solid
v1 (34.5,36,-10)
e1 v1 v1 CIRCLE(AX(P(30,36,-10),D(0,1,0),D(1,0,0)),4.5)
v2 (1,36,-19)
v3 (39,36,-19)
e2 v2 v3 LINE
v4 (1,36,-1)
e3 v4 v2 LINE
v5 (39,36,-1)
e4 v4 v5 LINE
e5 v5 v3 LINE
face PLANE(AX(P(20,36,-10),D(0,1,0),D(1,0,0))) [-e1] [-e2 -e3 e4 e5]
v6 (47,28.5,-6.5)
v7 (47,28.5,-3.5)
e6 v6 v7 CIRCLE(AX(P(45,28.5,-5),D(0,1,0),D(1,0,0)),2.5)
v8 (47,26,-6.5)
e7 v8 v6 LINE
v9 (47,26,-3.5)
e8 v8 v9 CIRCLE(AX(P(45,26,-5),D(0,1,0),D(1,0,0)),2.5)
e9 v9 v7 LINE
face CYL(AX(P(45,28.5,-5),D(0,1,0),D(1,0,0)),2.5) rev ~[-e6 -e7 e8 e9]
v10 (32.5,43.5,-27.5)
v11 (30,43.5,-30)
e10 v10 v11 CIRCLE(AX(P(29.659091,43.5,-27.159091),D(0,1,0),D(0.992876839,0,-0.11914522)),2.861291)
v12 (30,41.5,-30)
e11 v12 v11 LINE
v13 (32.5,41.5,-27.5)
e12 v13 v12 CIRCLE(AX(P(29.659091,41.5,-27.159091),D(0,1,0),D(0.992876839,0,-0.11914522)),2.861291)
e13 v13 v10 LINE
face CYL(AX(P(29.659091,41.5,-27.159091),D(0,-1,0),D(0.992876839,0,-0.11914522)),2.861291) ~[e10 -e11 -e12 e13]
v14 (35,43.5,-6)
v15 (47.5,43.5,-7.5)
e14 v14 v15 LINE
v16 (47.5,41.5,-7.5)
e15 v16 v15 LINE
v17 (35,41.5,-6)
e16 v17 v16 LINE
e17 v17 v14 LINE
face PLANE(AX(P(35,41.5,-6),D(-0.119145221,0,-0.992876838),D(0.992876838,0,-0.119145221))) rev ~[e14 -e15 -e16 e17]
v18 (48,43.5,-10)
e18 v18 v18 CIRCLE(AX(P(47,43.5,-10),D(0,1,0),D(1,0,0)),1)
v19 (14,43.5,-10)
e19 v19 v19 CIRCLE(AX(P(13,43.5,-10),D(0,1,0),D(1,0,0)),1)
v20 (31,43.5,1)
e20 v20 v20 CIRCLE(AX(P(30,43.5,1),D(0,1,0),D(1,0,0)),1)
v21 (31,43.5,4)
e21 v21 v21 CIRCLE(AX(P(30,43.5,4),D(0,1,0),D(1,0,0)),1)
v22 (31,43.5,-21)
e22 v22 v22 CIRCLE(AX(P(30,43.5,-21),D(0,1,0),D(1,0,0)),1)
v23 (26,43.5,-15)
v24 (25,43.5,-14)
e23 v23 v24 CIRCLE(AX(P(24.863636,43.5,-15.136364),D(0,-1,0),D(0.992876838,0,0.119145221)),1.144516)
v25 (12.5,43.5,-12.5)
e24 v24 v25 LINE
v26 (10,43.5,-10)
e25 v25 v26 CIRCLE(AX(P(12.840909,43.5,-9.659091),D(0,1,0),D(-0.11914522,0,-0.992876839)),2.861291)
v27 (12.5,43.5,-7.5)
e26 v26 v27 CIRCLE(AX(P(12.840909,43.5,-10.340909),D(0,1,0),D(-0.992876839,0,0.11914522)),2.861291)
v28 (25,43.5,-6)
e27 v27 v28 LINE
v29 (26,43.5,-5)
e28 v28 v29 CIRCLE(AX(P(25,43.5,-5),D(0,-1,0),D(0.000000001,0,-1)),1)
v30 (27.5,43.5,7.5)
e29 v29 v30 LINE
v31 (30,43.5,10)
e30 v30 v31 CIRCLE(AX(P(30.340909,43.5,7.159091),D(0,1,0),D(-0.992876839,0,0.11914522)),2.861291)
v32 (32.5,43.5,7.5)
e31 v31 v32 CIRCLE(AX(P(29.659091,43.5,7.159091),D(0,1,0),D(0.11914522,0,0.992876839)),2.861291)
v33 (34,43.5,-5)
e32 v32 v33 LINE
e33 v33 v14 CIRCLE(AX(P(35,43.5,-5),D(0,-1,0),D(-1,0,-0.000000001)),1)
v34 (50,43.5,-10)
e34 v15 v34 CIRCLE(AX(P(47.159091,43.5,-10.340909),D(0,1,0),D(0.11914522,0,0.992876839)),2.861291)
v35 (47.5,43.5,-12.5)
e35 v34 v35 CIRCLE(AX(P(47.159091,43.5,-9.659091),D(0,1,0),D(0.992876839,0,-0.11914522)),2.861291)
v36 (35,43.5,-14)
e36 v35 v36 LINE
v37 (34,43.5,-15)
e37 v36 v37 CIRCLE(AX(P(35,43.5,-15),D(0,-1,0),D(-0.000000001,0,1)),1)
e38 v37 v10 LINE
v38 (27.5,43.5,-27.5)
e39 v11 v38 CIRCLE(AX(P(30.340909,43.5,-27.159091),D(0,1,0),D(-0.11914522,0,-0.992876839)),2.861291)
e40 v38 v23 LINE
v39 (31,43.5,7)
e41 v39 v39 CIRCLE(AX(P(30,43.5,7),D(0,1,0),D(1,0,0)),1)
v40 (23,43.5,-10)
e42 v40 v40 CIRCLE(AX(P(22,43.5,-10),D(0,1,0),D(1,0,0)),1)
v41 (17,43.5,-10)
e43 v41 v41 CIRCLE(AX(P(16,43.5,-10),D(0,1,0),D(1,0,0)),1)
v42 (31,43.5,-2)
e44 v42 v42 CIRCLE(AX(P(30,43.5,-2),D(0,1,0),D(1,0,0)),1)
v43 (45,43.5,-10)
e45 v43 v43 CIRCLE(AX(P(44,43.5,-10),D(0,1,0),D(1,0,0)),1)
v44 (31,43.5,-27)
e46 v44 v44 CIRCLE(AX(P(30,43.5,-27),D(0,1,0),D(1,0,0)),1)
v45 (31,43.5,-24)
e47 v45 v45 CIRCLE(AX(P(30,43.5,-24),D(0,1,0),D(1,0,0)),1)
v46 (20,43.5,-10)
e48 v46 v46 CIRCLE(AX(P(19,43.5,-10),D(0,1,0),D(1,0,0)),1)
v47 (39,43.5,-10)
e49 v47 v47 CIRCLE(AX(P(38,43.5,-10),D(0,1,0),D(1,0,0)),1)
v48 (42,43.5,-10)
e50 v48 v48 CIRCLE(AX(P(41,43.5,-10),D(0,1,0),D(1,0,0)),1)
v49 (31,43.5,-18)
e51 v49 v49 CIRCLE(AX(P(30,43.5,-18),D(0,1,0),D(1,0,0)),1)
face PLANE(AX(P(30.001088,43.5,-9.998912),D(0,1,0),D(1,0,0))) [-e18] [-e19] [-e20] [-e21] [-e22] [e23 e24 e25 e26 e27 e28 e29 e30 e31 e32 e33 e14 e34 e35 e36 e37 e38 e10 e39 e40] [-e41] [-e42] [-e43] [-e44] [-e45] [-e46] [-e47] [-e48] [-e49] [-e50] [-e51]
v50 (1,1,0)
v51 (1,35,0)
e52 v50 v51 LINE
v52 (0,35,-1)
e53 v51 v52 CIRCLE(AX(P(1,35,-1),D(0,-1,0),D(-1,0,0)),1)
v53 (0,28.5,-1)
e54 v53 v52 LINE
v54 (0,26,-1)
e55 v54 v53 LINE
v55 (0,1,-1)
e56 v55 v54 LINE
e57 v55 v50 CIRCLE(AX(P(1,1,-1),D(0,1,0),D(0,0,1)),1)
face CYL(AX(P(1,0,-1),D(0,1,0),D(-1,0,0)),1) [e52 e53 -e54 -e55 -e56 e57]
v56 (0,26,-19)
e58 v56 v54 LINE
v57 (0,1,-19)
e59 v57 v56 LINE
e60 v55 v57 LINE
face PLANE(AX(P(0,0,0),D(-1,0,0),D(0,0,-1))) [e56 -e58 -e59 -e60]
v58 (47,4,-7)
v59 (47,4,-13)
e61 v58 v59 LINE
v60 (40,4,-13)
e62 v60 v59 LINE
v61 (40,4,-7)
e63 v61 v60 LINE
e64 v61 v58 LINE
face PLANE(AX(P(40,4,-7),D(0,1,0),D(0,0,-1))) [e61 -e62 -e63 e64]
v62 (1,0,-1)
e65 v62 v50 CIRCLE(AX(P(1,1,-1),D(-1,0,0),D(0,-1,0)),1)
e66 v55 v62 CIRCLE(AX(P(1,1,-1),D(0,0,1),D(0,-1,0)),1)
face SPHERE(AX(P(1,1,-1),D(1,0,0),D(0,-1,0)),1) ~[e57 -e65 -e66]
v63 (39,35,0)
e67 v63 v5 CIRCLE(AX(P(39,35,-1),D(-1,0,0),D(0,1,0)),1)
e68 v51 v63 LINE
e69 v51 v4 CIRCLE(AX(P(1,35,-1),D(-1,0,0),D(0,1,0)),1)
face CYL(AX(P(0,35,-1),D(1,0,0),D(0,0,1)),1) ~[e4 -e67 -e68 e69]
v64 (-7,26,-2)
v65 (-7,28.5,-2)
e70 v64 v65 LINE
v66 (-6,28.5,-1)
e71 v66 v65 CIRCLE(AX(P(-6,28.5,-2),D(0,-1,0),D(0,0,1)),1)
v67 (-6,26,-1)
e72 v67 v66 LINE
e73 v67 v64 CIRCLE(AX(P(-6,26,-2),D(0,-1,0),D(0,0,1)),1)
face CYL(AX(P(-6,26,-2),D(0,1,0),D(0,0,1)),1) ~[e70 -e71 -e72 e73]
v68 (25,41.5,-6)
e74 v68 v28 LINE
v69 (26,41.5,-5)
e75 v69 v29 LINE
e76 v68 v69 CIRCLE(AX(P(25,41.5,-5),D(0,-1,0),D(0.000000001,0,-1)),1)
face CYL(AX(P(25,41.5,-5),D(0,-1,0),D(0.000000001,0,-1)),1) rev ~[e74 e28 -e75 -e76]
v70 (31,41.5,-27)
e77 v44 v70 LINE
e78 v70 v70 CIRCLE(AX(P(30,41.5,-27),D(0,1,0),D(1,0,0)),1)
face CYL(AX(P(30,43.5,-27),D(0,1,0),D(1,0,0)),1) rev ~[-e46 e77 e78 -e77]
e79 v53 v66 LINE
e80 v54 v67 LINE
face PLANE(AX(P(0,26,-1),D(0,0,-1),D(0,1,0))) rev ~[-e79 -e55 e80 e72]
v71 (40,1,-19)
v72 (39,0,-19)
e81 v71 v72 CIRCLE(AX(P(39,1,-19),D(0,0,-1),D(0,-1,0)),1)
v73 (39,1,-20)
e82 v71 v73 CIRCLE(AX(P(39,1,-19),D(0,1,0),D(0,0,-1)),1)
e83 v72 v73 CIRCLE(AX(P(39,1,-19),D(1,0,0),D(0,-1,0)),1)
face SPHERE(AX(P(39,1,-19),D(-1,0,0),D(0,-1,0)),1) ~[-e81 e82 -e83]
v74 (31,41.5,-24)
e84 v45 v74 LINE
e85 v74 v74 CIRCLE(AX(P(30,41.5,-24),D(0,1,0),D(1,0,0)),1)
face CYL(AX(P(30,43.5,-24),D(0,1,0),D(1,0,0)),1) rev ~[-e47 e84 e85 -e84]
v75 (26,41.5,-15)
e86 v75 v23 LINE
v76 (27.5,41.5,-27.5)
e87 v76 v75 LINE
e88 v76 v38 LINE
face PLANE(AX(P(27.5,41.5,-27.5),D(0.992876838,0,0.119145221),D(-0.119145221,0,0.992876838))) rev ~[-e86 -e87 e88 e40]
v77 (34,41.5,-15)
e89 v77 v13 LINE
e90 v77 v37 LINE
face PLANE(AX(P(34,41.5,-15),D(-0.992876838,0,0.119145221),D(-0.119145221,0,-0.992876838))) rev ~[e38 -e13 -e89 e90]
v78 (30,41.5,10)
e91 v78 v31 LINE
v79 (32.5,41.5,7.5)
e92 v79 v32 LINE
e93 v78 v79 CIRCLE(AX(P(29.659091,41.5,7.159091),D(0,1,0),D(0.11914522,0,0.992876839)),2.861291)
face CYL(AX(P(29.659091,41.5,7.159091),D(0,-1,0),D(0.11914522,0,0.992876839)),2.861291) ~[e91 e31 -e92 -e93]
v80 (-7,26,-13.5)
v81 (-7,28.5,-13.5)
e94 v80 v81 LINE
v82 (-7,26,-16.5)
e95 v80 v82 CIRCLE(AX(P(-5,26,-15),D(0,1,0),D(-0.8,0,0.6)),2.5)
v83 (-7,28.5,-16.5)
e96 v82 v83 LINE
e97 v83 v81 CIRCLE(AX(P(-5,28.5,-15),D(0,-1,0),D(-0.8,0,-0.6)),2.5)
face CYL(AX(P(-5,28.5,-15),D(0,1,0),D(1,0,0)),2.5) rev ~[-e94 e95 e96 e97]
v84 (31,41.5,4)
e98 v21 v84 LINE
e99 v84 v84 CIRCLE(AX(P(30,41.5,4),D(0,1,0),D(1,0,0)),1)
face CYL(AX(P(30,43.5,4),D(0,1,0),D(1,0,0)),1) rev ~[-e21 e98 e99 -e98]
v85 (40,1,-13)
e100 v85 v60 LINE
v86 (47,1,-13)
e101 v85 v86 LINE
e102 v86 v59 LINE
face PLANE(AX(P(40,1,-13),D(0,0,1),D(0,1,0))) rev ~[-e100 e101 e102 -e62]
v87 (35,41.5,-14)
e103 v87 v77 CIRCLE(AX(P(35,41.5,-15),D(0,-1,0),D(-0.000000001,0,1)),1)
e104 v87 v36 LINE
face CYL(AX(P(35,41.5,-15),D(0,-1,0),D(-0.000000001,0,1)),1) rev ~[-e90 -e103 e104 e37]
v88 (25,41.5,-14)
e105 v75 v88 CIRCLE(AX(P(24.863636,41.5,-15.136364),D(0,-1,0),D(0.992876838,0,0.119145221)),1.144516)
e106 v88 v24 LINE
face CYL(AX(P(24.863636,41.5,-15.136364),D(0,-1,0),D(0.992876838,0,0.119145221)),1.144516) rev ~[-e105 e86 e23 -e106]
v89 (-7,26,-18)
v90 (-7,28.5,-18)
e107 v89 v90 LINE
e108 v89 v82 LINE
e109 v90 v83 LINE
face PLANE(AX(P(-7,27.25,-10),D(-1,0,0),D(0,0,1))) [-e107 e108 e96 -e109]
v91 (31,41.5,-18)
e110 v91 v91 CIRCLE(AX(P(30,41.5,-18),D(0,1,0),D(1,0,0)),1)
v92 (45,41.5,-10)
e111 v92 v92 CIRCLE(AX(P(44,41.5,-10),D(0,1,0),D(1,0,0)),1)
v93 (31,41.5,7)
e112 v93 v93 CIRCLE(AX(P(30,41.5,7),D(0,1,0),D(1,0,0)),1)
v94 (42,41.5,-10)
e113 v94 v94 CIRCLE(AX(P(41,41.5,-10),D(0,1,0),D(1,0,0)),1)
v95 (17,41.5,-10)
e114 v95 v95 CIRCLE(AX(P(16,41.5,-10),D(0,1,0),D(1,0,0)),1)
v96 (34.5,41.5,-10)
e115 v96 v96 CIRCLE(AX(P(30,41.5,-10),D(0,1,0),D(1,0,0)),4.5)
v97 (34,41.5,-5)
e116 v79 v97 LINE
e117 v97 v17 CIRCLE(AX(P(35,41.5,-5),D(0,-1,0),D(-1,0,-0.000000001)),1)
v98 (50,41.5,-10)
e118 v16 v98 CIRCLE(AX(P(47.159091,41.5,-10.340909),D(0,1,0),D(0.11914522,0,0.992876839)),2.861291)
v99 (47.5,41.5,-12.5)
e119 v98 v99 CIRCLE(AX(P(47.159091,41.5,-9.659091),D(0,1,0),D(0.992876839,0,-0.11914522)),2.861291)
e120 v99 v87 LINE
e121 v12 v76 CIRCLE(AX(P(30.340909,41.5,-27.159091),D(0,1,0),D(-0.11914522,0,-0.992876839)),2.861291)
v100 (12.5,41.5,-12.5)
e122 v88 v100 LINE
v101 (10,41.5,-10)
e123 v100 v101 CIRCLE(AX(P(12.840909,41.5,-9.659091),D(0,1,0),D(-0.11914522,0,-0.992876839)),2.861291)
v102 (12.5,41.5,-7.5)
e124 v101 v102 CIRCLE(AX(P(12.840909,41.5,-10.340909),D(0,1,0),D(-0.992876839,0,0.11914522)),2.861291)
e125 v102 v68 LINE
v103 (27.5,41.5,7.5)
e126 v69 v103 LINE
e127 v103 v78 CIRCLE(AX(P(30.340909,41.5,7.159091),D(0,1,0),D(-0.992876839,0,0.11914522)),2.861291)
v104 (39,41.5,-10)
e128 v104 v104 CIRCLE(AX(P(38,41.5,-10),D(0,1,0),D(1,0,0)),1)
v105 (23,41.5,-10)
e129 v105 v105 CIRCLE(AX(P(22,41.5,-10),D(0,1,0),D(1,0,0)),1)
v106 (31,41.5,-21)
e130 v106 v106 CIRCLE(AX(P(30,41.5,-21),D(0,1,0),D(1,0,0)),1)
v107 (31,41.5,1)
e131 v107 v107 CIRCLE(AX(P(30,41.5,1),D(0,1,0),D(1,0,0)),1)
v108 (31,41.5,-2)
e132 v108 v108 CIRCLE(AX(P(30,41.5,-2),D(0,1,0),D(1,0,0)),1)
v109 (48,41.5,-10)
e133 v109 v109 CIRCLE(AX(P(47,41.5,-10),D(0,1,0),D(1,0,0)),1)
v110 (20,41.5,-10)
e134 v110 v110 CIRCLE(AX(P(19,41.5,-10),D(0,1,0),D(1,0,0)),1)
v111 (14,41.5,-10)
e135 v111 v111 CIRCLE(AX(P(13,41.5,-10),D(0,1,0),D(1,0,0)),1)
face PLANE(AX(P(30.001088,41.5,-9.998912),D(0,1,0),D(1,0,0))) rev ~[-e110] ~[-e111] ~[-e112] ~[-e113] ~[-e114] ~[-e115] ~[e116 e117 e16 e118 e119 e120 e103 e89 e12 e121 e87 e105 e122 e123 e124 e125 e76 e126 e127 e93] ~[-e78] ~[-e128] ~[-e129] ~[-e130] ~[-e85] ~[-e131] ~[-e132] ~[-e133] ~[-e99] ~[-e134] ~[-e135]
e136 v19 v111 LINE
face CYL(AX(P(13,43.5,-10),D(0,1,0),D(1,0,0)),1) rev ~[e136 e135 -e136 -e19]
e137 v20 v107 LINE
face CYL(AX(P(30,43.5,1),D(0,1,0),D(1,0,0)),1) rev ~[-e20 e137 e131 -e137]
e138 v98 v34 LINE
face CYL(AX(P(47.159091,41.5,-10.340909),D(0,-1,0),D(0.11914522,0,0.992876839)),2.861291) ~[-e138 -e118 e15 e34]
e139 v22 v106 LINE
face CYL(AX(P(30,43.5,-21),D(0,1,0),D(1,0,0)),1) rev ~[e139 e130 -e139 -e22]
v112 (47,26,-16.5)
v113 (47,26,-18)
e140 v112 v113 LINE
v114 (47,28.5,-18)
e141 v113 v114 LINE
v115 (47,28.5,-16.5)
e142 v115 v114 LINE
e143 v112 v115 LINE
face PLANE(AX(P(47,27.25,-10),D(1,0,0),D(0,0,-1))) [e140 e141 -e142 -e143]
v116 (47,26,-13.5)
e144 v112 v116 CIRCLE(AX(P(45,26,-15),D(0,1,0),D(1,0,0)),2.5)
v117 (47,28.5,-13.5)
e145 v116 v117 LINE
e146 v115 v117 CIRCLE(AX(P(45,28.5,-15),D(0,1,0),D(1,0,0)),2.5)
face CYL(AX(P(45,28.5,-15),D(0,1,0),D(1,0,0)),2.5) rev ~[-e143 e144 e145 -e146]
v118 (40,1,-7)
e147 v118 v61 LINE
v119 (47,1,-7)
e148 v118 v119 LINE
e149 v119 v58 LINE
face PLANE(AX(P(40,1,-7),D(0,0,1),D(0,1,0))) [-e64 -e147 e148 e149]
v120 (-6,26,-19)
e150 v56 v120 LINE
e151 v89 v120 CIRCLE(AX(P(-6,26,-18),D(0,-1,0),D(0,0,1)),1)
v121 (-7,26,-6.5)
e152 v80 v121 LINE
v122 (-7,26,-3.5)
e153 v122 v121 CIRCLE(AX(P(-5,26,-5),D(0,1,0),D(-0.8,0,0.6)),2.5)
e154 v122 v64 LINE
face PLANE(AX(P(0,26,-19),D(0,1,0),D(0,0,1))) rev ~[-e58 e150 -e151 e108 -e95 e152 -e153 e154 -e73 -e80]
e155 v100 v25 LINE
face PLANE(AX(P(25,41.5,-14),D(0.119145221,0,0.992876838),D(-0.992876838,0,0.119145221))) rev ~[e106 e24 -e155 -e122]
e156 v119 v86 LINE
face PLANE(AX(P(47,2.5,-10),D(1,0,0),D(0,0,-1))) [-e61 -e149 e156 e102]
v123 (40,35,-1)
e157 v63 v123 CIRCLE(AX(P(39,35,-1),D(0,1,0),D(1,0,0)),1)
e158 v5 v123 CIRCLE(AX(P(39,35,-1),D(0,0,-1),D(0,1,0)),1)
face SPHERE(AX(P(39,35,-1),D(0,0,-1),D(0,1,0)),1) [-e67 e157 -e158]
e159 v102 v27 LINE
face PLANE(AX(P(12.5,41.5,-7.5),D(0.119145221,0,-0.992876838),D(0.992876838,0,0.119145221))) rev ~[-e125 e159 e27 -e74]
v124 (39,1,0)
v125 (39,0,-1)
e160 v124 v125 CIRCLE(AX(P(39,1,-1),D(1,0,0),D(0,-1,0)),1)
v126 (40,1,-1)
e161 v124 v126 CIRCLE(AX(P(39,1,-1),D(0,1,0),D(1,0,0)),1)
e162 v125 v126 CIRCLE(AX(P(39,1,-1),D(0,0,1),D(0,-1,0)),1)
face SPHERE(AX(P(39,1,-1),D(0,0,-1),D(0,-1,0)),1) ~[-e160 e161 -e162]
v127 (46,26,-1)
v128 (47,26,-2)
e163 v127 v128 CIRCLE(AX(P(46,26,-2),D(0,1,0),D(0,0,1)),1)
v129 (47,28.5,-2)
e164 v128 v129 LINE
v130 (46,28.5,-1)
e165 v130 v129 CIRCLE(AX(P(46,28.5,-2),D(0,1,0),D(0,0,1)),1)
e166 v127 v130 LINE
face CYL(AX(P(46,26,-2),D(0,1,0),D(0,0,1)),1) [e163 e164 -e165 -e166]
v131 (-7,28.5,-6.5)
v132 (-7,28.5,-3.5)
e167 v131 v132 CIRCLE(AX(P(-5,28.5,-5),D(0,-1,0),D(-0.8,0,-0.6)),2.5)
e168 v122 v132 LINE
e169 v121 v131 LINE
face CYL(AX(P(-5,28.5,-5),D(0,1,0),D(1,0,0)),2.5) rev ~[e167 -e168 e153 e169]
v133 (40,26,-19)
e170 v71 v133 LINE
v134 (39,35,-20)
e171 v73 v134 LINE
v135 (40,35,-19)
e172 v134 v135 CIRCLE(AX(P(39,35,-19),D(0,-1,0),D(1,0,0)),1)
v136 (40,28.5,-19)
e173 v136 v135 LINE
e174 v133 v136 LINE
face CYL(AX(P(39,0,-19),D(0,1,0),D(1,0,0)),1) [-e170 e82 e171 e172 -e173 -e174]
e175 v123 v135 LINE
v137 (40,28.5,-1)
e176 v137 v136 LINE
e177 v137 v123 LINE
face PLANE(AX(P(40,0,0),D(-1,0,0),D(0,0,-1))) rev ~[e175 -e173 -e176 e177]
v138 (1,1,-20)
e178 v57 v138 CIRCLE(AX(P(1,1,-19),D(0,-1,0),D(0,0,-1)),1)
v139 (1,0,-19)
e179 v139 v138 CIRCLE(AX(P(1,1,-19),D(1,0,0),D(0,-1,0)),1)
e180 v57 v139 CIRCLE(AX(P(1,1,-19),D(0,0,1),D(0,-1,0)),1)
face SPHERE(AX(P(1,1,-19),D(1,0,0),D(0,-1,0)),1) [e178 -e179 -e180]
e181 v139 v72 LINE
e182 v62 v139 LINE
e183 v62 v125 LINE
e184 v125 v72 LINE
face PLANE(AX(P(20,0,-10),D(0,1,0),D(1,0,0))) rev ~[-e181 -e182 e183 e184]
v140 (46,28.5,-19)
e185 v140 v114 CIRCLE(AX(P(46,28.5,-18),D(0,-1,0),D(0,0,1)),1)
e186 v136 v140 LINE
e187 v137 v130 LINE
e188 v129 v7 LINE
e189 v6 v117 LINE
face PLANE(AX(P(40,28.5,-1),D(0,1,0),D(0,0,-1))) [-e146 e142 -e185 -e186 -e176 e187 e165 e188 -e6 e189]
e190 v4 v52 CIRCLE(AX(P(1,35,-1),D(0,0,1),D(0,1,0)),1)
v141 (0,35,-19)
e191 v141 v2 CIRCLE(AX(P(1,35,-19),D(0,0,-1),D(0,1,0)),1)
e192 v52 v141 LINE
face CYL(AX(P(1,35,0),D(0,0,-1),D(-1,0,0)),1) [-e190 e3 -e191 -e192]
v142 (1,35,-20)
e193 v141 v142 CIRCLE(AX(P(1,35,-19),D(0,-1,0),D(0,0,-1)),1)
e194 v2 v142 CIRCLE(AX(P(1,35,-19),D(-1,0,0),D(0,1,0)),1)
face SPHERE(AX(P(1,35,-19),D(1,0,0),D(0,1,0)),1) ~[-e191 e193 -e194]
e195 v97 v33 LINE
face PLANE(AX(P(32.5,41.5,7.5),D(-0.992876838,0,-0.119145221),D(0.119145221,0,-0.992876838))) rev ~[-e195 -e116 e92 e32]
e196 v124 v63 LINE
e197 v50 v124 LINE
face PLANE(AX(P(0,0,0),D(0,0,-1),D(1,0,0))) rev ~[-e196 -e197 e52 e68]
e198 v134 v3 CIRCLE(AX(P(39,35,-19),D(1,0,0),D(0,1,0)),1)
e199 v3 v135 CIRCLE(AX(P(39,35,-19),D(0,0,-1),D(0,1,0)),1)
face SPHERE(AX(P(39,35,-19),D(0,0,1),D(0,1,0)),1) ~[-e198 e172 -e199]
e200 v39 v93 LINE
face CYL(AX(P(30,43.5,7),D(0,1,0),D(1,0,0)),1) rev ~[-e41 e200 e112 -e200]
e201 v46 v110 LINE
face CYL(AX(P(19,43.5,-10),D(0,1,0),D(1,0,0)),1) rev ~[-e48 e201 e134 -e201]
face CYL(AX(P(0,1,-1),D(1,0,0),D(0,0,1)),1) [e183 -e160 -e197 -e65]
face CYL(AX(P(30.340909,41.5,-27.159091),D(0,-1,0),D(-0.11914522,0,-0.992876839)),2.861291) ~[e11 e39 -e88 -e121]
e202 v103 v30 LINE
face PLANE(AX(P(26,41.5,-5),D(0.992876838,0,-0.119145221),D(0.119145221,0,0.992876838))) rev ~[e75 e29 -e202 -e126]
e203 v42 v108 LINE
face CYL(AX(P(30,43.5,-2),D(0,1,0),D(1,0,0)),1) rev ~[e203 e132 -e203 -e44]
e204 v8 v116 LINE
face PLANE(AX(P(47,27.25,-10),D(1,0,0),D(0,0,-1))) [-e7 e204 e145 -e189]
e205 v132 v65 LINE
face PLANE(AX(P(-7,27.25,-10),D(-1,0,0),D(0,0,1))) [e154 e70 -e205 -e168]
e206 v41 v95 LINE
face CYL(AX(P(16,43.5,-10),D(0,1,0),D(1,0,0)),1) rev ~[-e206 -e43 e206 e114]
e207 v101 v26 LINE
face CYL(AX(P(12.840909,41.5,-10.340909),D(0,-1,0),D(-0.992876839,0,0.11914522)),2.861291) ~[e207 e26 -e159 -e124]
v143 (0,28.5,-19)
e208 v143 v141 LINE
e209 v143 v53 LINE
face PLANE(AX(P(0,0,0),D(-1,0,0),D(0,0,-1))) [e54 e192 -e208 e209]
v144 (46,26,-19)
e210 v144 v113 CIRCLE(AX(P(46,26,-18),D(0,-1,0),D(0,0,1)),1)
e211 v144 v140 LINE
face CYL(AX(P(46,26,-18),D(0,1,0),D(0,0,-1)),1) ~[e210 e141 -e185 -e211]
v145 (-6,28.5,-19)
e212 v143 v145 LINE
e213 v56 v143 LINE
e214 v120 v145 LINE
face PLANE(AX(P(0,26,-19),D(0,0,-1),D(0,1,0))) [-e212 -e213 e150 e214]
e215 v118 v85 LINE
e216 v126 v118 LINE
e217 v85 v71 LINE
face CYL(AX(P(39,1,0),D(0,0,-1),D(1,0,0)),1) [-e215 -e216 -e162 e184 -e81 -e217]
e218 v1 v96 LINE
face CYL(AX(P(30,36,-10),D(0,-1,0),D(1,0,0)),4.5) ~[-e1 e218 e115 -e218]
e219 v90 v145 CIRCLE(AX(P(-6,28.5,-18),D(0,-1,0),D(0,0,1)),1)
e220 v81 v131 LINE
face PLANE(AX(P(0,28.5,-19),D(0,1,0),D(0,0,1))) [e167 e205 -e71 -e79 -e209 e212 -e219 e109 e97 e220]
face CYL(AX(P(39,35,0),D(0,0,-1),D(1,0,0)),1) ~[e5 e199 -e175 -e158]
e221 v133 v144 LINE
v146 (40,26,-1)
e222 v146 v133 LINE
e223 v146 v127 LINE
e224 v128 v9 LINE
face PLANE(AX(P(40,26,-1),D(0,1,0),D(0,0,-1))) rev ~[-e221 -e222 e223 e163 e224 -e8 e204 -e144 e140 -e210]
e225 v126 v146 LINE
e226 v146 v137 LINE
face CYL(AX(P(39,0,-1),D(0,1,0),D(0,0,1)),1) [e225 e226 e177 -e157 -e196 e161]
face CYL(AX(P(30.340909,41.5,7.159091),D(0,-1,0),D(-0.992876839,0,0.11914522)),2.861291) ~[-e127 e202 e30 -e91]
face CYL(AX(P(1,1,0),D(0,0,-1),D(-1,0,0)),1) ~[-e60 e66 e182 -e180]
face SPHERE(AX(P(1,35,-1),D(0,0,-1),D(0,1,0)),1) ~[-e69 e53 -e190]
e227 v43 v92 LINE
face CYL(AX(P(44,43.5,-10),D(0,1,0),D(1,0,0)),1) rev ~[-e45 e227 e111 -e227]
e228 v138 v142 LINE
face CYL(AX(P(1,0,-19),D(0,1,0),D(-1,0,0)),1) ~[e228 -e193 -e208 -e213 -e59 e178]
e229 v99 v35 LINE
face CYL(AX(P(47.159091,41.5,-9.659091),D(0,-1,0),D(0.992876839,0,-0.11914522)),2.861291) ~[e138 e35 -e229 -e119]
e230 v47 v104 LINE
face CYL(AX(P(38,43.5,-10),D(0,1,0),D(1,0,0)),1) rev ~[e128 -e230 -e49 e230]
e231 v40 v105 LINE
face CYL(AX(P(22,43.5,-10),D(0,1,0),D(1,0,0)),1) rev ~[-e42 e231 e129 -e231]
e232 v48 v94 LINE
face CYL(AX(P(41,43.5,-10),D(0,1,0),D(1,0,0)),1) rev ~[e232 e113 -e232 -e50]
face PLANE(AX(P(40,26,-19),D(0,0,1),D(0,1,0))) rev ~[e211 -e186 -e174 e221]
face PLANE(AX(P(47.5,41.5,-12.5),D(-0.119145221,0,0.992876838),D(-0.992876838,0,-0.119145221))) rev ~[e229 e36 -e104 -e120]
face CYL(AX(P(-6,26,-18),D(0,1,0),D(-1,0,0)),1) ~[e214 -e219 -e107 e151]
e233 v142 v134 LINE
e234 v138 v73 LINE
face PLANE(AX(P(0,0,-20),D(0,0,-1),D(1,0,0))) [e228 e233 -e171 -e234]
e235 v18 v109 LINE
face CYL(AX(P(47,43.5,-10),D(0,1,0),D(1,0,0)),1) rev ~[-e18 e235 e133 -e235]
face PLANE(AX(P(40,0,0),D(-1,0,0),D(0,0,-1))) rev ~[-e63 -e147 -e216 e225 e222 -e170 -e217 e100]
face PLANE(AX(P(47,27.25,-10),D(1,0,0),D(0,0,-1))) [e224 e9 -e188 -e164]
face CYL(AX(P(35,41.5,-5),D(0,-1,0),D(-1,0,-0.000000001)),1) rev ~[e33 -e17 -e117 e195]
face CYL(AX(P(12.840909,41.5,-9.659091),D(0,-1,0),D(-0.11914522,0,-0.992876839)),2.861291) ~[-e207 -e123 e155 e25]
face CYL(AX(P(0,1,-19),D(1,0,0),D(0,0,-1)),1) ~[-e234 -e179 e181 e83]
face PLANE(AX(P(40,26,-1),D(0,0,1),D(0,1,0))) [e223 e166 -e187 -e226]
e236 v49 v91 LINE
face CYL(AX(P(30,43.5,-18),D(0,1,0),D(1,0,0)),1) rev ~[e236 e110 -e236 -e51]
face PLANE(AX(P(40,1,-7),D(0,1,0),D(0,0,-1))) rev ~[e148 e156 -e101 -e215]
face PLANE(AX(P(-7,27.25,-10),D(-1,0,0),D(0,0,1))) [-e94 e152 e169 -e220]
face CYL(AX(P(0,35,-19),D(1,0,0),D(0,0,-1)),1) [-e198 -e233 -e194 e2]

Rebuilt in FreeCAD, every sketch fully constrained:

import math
import FreeCAD as App
import Part
import Sketcher
Q = App.Units.Quantity


def edges_at(feature, points):
    """Names of the edges that pass closest to the given points."""
    edges = feature.Shape.Edges
    near = lambda p: min(range(len(edges)), key=lambda i: edges[i].distToShape(Part.Vertex(*p))[0])
    return sorted({f"Edge{near(p) + 1}" for p in points})

doc = App.newDocument("Part")
body = doc.addObject("PartDesign::Body", "Body")

sketch1 = doc.addObject("Sketcher::SketchObject", "Sketch")
body.addObject(sketch1)
sketch1.AttachmentSupport = (doc.XZ_Plane, [""])
sketch1.MapMode = "FlatFace"
sketch1.addGeometry([
    Part.LineSegment(App.Vector(0, -20, 0), App.Vector(0, 0, 0)),
    Part.LineSegment(App.Vector(0, 0, 0), App.Vector(40, 0, 0)),
    Part.LineSegment(App.Vector(40, 0, 0), App.Vector(40, -20, 0)),
    Part.LineSegment(App.Vector(40, -20, 0), App.Vector(0, -20, 0)),
], False)
sketch1.addConstraint([
    Sketcher.Constraint("Coincident", 0, 2, 1, 1),
    Sketcher.Constraint("Coincident", 1, 2, 2, 1),
    Sketcher.Constraint("Coincident", 2, 2, 3, 1),
    Sketcher.Constraint("Coincident", 3, 2, 0, 1),
    Sketcher.Constraint("Vertical", 0),
    Sketcher.Constraint("Horizontal", 1),
    Sketcher.Constraint("Vertical", 2),
    Sketcher.Constraint("Horizontal", 3),
    Sketcher.Constraint("Coincident", 0, 2, -1, 1),
    Sketcher.Constraint("DistanceX", 1, 1, 1, 2, Q("40 mm")),
    Sketcher.Constraint("DistanceY", 0, 1, 0, 2, Q("20 mm")),
])
pad1 = doc.addObject("PartDesign::Pad", "Pad")
body.addObject(pad1)
pad1.Profile = sketch1
pad1.Length = 36
pad1.Reversed = True
doc.recompute()

fillet = doc.addObject("PartDesign::Fillet", "Fillet")
body.addObject(fillet)
fillet.Base = (pad1, ["Edge1"])
fillet.UseAllEdges = True
fillet.Radius = 1

sketch2 = doc.addObject("Sketcher::SketchObject", "Sketch001")
body.addObject(sketch2)
sketch2.AttachmentSupport = (doc.YZ_Plane, [""])
sketch2.MapMode = "FlatFace"
sketch2.AttachmentOffset = App.Placement(App.Vector(0, 0, 40), App.Rotation())
sketch2.addGeometry([
    Part.LineSegment(App.Vector(28.5, -1, 0), App.Vector(26, -1, 0)),
    Part.LineSegment(App.Vector(26, -1, 0), App.Vector(26, -19, 0)),
    Part.LineSegment(App.Vector(26, -19, 0), App.Vector(28.5, -19, 0)),
    Part.LineSegment(App.Vector(28.5, -19, 0), App.Vector(28.5, -1, 0)),
], False)
sketch2.addConstraint([
    Sketcher.Constraint("Coincident", 0, 2, 1, 1),
    Sketcher.Constraint("Coincident", 1, 2, 2, 1),
    Sketcher.Constraint("Coincident", 2, 2, 3, 1),
    Sketcher.Constraint("Coincident", 3, 2, 0, 1),
    Sketcher.Constraint("Horizontal", 0),
    Sketcher.Constraint("Vertical", 1),
    Sketcher.Constraint("Horizontal", 2),
    Sketcher.Constraint("Vertical", 3),
    Sketcher.Constraint("DistanceY", 1, 2, 1, 1, Q("18 mm")),
    Sketcher.Constraint("DistanceX", 0, 2, 0, 1, Q("2.5 mm")),
    Sketcher.Constraint("DistanceX", -1, 1, 0, 2, Q("26 mm")),
    Sketcher.Constraint("DistanceY", 0, 2, -1, 1, Q("1 mm")),
])
pad2 = doc.addObject("PartDesign::Pad", "Pad001")
body.addObject(pad2)
pad2.Profile = sketch2
pad2.Length = 7

sketch3 = doc.addObject("Sketcher::SketchObject", "Sketch002")
body.addObject(sketch3)
sketch3.AttachmentSupport = (doc.XZ_Plane, [""])
sketch3.MapMode = "FlatFace"
sketch3.AttachmentOffset = App.Placement(App.Vector(0, 0, -28.5), App.Rotation())
sketch3.addGeometry(Part.Circle(App.Vector(45, -5, 0), App.Vector(0, 0, 1), 2.5), False)
sketch3.addConstraint([
    Sketcher.Constraint("Diameter", 0, Q("5 mm")),
    Sketcher.Constraint("DistanceX", -1, 1, 0, 3, Q("45 mm")),
    Sketcher.Constraint("DistanceY", 0, 3, -1, 1, Q("5 mm")),
])
pocket1 = doc.addObject("PartDesign::Pocket", "Pocket")
body.addObject(pocket1)
pocket1.Profile = sketch3
pocket1.Type = "UpToFirst"
pocket1.Reversed = True

sketch4 = doc.addObject("Sketcher::SketchObject", "Sketch003")
body.addObject(sketch4)
sketch4.AttachmentSupport = (doc.XZ_Plane, [""])
sketch4.MapMode = "FlatFace"
sketch4.AttachmentOffset = App.Placement(App.Vector(0, 0, -28.5), App.Rotation())
sketch4.addGeometry(Part.Circle(App.Vector(45, -15, 0), App.Vector(0, 0, 1), 2.5), False)
sketch4.addConstraint([
    Sketcher.Constraint("Diameter", 0, Q("5 mm")),
    Sketcher.Constraint("DistanceX", -1, 1, 0, 3, Q("45 mm")),
    Sketcher.Constraint("DistanceY", 0, 3, -1, 1, Q("15 mm")),
])
pocket2 = doc.addObject("PartDesign::Pocket", "Pocket001")
body.addObject(pocket2)
pocket2.Profile = sketch4
pocket2.Type = "UpToFirst"
pocket2.Reversed = True
doc.recompute()

fillet2 = doc.addObject("PartDesign::Fillet", "Fillet001")
body.addObject(fillet2)
fillet2.Base = (pocket2, edges_at(pocket2, [(47, 27.25, -19), (47, 27.25, -1)]))
fillet2.Radius = 1

sketch5 = doc.addObject("Sketcher::SketchObject", "Sketch004")
body.addObject(sketch5)
sketch5.AttachmentSupport = (doc.YZ_Plane, [""])
sketch5.MapMode = "FlatFace"
sketch5.addGeometry([
    Part.LineSegment(App.Vector(28.5, -19, 0), App.Vector(26, -19, 0)),
    Part.LineSegment(App.Vector(26, -19, 0), App.Vector(26, -1, 0)),
    Part.LineSegment(App.Vector(26, -1, 0), App.Vector(28.5, -1, 0)),
    Part.LineSegment(App.Vector(28.5, -1, 0), App.Vector(28.5, -19, 0)),
], False)
sketch5.addConstraint([
    Sketcher.Constraint("Coincident", 0, 2, 1, 1),
    Sketcher.Constraint("Coincident", 1, 2, 2, 1),
    Sketcher.Constraint("Coincident", 2, 2, 3, 1),
    Sketcher.Constraint("Coincident", 3, 2, 0, 1),
    Sketcher.Constraint("Horizontal", 0),
    Sketcher.Constraint("Vertical", 1),
    Sketcher.Constraint("Horizontal", 2),
    Sketcher.Constraint("Vertical", 3),
    Sketcher.Constraint("DistanceY", 1, 1, 1, 2, Q("18 mm")),
    Sketcher.Constraint("DistanceX", 0, 2, 0, 1, Q("2.5 mm")),
    Sketcher.Constraint("DistanceX", -1, 1, 0, 2, Q("26 mm")),
    Sketcher.Constraint("DistanceY", 0, 2, -1, 1, Q("19 mm")),
])
pad3 = doc.addObject("PartDesign::Pad", "Pad002")
body.addObject(pad3)
pad3.Profile = sketch5
pad3.Length = 7
pad3.Reversed = True
doc.recompute()

fillet3 = doc.addObject("PartDesign::Fillet", "Fillet002")
body.addObject(fillet3)
fillet3.Base = (pad3, edges_at(pad3, [(-7, 27.25, -19), (-7, 27.25, -1)]))
fillet3.Radius = 1

sketch6 = doc.addObject("Sketcher::SketchObject", "Sketch005")
body.addObject(sketch6)
sketch6.AttachmentSupport = (doc.XZ_Plane, [""])
sketch6.MapMode = "FlatFace"
sketch6.AttachmentOffset = App.Placement(App.Vector(0, 0, -28.5), App.Rotation())
sketch6.addGeometry(Part.Circle(App.Vector(-5, -15, 0), App.Vector(0, 0, 1), 2.5), False)
sketch6.addConstraint([
    Sketcher.Constraint("Diameter", 0, Q("5 mm")),
    Sketcher.Constraint("DistanceX", 0, 3, -1, 1, Q("5 mm")),
    Sketcher.Constraint("DistanceY", 0, 3, -1, 1, Q("15 mm")),
])
pocket3 = doc.addObject("PartDesign::Pocket", "Pocket002")
body.addObject(pocket3)
pocket3.Profile = sketch6
pocket3.Type = "UpToFirst"
pocket3.Reversed = True

sketch7 = doc.addObject("Sketcher::SketchObject", "Sketch006")
body.addObject(sketch7)
sketch7.AttachmentSupport = (doc.XZ_Plane, [""])
sketch7.MapMode = "FlatFace"
sketch7.AttachmentOffset = App.Placement(App.Vector(0, 0, -28.5), App.Rotation())
sketch7.addGeometry(Part.Circle(App.Vector(-5, -5, 0), App.Vector(0, 0, 1), 2.5), False)
sketch7.addConstraint([
    Sketcher.Constraint("Diameter", 0, Q("5 mm")),
    Sketcher.Constraint("DistanceX", 0, 3, -1, 1, Q("5 mm")),
    Sketcher.Constraint("DistanceY", 0, 3, -1, 1, Q("5 mm")),
])
pocket4 = doc.addObject("PartDesign::Pocket", "Pocket003")
body.addObject(pocket4)
pocket4.Profile = sketch7
pocket4.Type = "UpToFirst"
pocket4.Reversed = True

sketch8 = doc.addObject("Sketcher::SketchObject", "Sketch007")
body.addObject(sketch8)
sketch8.AttachmentSupport = (doc.XZ_Plane, [""])
sketch8.MapMode = "FlatFace"
sketch8.AttachmentOffset = App.Placement(App.Vector(0, 0, -36), App.Rotation())
sketch8.addGeometry(Part.Circle(App.Vector(30, -10, 0), App.Vector(0, 0, 1), 4.5), False)
sketch8.addConstraint([
    Sketcher.Constraint("Diameter", 0, Q("9 mm")),
    Sketcher.Constraint("DistanceX", -1, 1, 0, 3, Q("30 mm")),
    Sketcher.Constraint("DistanceY", 0, 3, -1, 1, Q("10 mm")),
])
pad4 = doc.addObject("PartDesign::Pad", "Pad003")
body.addObject(pad4)
pad4.Profile = sketch8
pad4.Length = 5.5
pad4.Reversed = True

sketch9 = doc.addObject("Sketcher::SketchObject", "Sketch008")
body.addObject(sketch9)
sketch9.AttachmentSupport = (doc.XZ_Plane, [""])
sketch9.MapMode = "FlatFace"
sketch9.AttachmentOffset = App.Placement(App.Vector(0, 0, -41.5), App.Rotation())
sketch9.addGeometry([
    Part.LineSegment(App.Vector(27.5, -27.5, 0), App.Vector(26, -15, 0)),
    Part.ArcOfCircle(Part.Circle(App.Vector(24.9, -15.1, 0), App.Vector(0, 0, 1), 1.1), math.radians(7), math.radians(83)),
    Part.LineSegment(App.Vector(25, -14, 0), App.Vector(12.5, -12.5, 0)),
    Part.ArcOfCircle(Part.Circle(App.Vector(12.8, -9.7, 0), App.Vector(0, 0, 1), 2.9), math.radians(-173), math.radians(-97)),
    Part.ArcOfCircle(Part.Circle(App.Vector(12.8, -10.3, 0), App.Vector(0, 0, 1), 2.9), math.radians(97), math.radians(173)),
    Part.LineSegment(App.Vector(12.5, -7.5, 0), App.Vector(25, -6, 0)),
    Part.ArcOfCircle(Part.Circle(App.Vector(25, -5, 0), App.Vector(0, 0, 1), 1), math.radians(-90), math.radians(0)),
    Part.LineSegment(App.Vector(26, -5, 0), App.Vector(27.5, 7.5, 0)),
    Part.ArcOfCircle(Part.Circle(App.Vector(30.3, 7.2, 0), App.Vector(0, 0, 1), 2.9), math.radians(97), math.radians(173)),
    Part.ArcOfCircle(Part.Circle(App.Vector(29.7, 7.2, 0), App.Vector(0, 0, 1), 2.9), math.radians(7), math.radians(83)),
    Part.LineSegment(App.Vector(32.5, 7.5, 0), App.Vector(34, -5, 0)),
    Part.ArcOfCircle(Part.Circle(App.Vector(35, -5, 0), App.Vector(0, 0, 1), 1), math.radians(-180), math.radians(-90)),
    Part.LineSegment(App.Vector(35, -6, 0), App.Vector(47.5, -7.5, 0)),
    Part.ArcOfCircle(Part.Circle(App.Vector(47.2, -10.3, 0), App.Vector(0, 0, 1), 2.9), math.radians(7), math.radians(83)),
    Part.ArcOfCircle(Part.Circle(App.Vector(47.2, -9.7, 0), App.Vector(0, 0, 1), 2.9), math.radians(-83), math.radians(-7)),
    Part.LineSegment(App.Vector(47.5, -12.5, 0), App.Vector(35, -14, 0)),
    Part.ArcOfCircle(Part.Circle(App.Vector(35, -15, 0), App.Vector(0, 0, 1), 1), math.radians(90), math.radians(180)),
    Part.LineSegment(App.Vector(34, -15, 0), App.Vector(32.5, -27.5, 0)),
    Part.ArcOfCircle(Part.Circle(App.Vector(29.7, -27.2, 0), App.Vector(0, 0, 1), 2.9), math.radians(-83), math.radians(-7)),
    Part.ArcOfCircle(Part.Circle(App.Vector(30.3, -27.2, 0), App.Vector(0, 0, 1), 2.9), math.radians(-173), math.radians(-97)),
], False)
sketch9.addConstraint([
    Sketcher.Constraint("Tangent", 0, 2, 1, 1),
    Sketcher.Constraint("Tangent", 1, 2, 2, 1),
    Sketcher.Constraint("Tangent", 2, 2, 3, 2),
    Sketcher.Constraint("Coincident", 3, 1, 4, 2),
    Sketcher.Constraint("Tangent", 4, 1, 5, 1),
    Sketcher.Constraint("Coincident", 5, 2, 6, 1),
    Sketcher.Constraint("Coincident", 6, 2, 7, 1),
    Sketcher.Constraint("Tangent", 7, 2, 8, 2),
    Sketcher.Constraint("Coincident", 8, 1, 9, 2),
    Sketcher.Constraint("Tangent", 9, 1, 10, 1),
    Sketcher.Constraint("Coincident", 10, 2, 11, 1),
    Sketcher.Constraint("Coincident", 11, 2, 12, 1),
    Sketcher.Constraint("Tangent", 12, 2, 13, 2),
    Sketcher.Constraint("Coincident", 13, 1, 14, 2),
    Sketcher.Constraint("Tangent", 14, 1, 15, 1),
    Sketcher.Constraint("Coincident", 15, 2, 16, 1),
    Sketcher.Constraint("Coincident", 16, 2, 17, 1),
    Sketcher.Constraint("Tangent", 17, 2, 18, 2),
    Sketcher.Constraint("Coincident", 18, 1, 19, 2),
    Sketcher.Constraint("Tangent", 19, 1, 0, 1),
    Sketcher.Constraint("Equal", 3, 4),
    Sketcher.Constraint("Equal", 4, 8),
    Sketcher.Constraint("Equal", 8, 9),
    Sketcher.Constraint("Equal", 6, 11),
    Sketcher.Constraint("Equal", 9, 13),
    Sketcher.Constraint("Equal", 13, 14),
    Sketcher.Constraint("Equal", 11, 16),
    Sketcher.Constraint("Equal", 14, 18),
    Sketcher.Constraint("Equal", 18, 19),
    Sketcher.Constraint("Perpendicular", 0, 5),
    Sketcher.Constraint("Perpendicular", 2, 7),
    Sketcher.Constraint("Perpendicular", 5, 10),
    Sketcher.Constraint("Perpendicular", 7, 12),
    Sketcher.Constraint("Perpendicular", 10, 15),
    Sketcher.Constraint("Perpendicular", 12, 17),
    Sketcher.Constraint("Horizontal", 8, 3, 9, 3),
    Sketcher.Constraint("Horizontal", 6, 3, 11, 3),
    Sketcher.Constraint("Horizontal", 4, 3, 13, 3),
    Sketcher.Constraint("Horizontal", 3, 3, 14, 3),
    Sketcher.Constraint("Horizontal", 18, 3, 19, 3),
    Sketcher.Constraint("Horizontal", 16, 3, 0, 2),
    Sketcher.Constraint("Horizontal", 11, 3, 6, 2),
    Sketcher.Constraint("Horizontal", 7, 2, 9, 1),
    Sketcher.Constraint("Horizontal", 6, 2, 10, 2),
    Sketcher.Constraint("Horizontal", 3, 1, 13, 1),
    Sketcher.Constraint("Horizontal", 1, 2, 15, 2),
    Sketcher.Constraint("Horizontal", 0, 2, 16, 2),
    Sketcher.Constraint("Vertical", 3, 3, 4, 3),
    Sketcher.Constraint("Vertical", 11, 3, 16, 3),
    Sketcher.Constraint("Vertical", 9, 3, 18, 3),
    Sketcher.Constraint("Vertical", 8, 3, 19, 3),
    Sketcher.Constraint("Vertical", 1, 2, 5, 2),
    Sketcher.Constraint("Vertical", 16, 3, 11, 2),
    Sketcher.Constraint("Equal", 0, 2),
    Sketcher.Constraint("Radius", 6, Q("1 mm")),
    Sketcher.Constraint("DistanceX", -1, 1, 6, 3, Q("25 mm")),
    Sketcher.Constraint("DistanceY", 6, 3, -1, 1, Q("5 mm")),
    Sketcher.Constraint("DistanceX", -1, 1, 11, 3, Q("35 mm")),
    Sketcher.Constraint("DistanceY", 16, 3, -1, 1, Q("15 mm")),
    Sketcher.Constraint("DistanceX", -1, 1, 3, 1, Q("10 mm")),
    Sketcher.Constraint("DistanceY", 2, 2, 4, 1, Q("5 mm")),
    Sketcher.Constraint("DistanceX", -1, 1, 2, 2, Q("12.5 mm")),
])
pad5 = doc.addObject("PartDesign::Pad", "Pad004")
body.addObject(pad5)
pad5.Profile = sketch9
pad5.Length = 2
pad5.Reversed = True

sketch10 = doc.addObject("Sketcher::SketchObject", "Sketch009")
body.addObject(sketch10)
sketch10.AttachmentSupport = (doc.XZ_Plane, [""])
sketch10.MapMode = "FlatFace"
sketch10.AttachmentOffset = App.Placement(App.Vector(0, 0, -43.5), App.Rotation())
sketch10.addGeometry(Part.Circle(App.Vector(30, -27, 0), App.Vector(0, 0, 1), 1), False)
sketch10.addConstraint([
    Sketcher.Constraint("Diameter", 0, Q("2 mm")),
    Sketcher.Constraint("DistanceX", -1, 1, 0, 3, Q("30 mm")),
    Sketcher.Constraint("DistanceY", 0, 3, -1, 1, Q("27 mm")),
])
pocket5 = doc.addObject("PartDesign::Pocket", "Pocket004")
body.addObject(pocket5)
pocket5.Profile = sketch10
pocket5.Type = "UpToFirst"
pocket5.Reversed = True

sketch11 = doc.addObject("Sketcher::SketchObject", "Sketch010")
body.addObject(sketch11)
sketch11.AttachmentSupport = (doc.XZ_Plane, [""])
sketch11.MapMode = "FlatFace"
sketch11.AttachmentOffset = App.Placement(App.Vector(0, 0, -43.5), App.Rotation())
sketch11.addGeometry(Part.Circle(App.Vector(30, -24, 0), App.Vector(0, 0, 1), 1), False)
sketch11.addConstraint([
    Sketcher.Constraint("Diameter", 0, Q("2 mm")),
    Sketcher.Constraint("DistanceX", -1, 1, 0, 3, Q("30 mm")),
    Sketcher.Constraint("DistanceY", 0, 3, -1, 1, Q("24 mm")),
])
pocket6 = doc.addObject("PartDesign::Pocket", "Pocket005")
body.addObject(pocket6)
pocket6.Profile = sketch11
pocket6.Type = "UpToFirst"
pocket6.Reversed = True

sketch12 = doc.addObject("Sketcher::SketchObject", "Sketch011")
body.addObject(sketch12)
sketch12.AttachmentSupport = (doc.XZ_Plane, [""])
sketch12.MapMode = "FlatFace"
sketch12.AttachmentOffset = App.Placement(App.Vector(0, 0, -43.5), App.Rotation())
sketch12.addGeometry(Part.Circle(App.Vector(30, -21, 0), App.Vector(0, 0, 1), 1), False)
sketch12.addConstraint([
    Sketcher.Constraint("Diameter", 0, Q("2 mm")),
    Sketcher.Constraint("DistanceX", -1, 1, 0, 3, Q("30 mm")),
    Sketcher.Constraint("DistanceY", 0, 3, -1, 1, Q("21 mm")),
])
pocket7 = doc.addObject("PartDesign::Pocket", "Pocket006")
body.addObject(pocket7)
pocket7.Profile = sketch12
pocket7.Type = "UpToFirst"
pocket7.Reversed = True

sketch13 = doc.addObject("Sketcher::SketchObject", "Sketch012")
body.addObject(sketch13)
sketch13.AttachmentSupport = (doc.XZ_Plane, [""])
sketch13.MapMode = "FlatFace"
sketch13.AttachmentOffset = App.Placement(App.Vector(0, 0, -43.5), App.Rotation())
sketch13.addGeometry(Part.Circle(App.Vector(30, -18, 0), App.Vector(0, 0, 1), 1), False)
sketch13.addConstraint([
    Sketcher.Constraint("Diameter", 0, Q("2 mm")),
    Sketcher.Constraint("DistanceX", -1, 1, 0, 3, Q("30 mm")),
    Sketcher.Constraint("DistanceY", 0, 3, -1, 1, Q("18 mm")),
])
pocket8 = doc.addObject("PartDesign::Pocket", "Pocket007")
body.addObject(pocket8)
pocket8.Profile = sketch13
pocket8.Type = "UpToFirst"
pocket8.Reversed = True

sketch14 = doc.addObject("Sketcher::SketchObject", "Sketch013")
body.addObject(sketch14)
sketch14.AttachmentSupport = (doc.XZ_Plane, [""])
sketch14.MapMode = "FlatFace"
sketch14.AttachmentOffset = App.Placement(App.Vector(0, 0, -43.5), App.Rotation())
sketch14.addGeometry(Part.Circle(App.Vector(47, -10, 0), App.Vector(0, 0, 1), 1), False)
sketch14.addConstraint([
    Sketcher.Constraint("Diameter", 0, Q("2 mm")),
    Sketcher.Constraint("DistanceX", -1, 1, 0, 3, Q("47 mm")),
    Sketcher.Constraint("DistanceY", 0, 3, -1, 1, Q("10 mm")),
])
pocket9 = doc.addObject("PartDesign::Pocket", "Pocket008")
body.addObject(pocket9)
pocket9.Profile = sketch14
pocket9.Type = "UpToFirst"
pocket9.Reversed = True

sketch15 = doc.addObject("Sketcher::SketchObject", "Sketch014")
body.addObject(sketch15)
sketch15.AttachmentSupport = (doc.XZ_Plane, [""])
sketch15.MapMode = "FlatFace"
sketch15.AttachmentOffset = App.Placement(App.Vector(0, 0, -43.5), App.Rotation())
sketch15.addGeometry(Part.Circle(App.Vector(44, -10, 0), App.Vector(0, 0, 1), 1), False)
sketch15.addConstraint([
    Sketcher.Constraint("Diameter", 0, Q("2 mm")),
    Sketcher.Constraint("DistanceX", -1, 1, 0, 3, Q("44 mm")),
    Sketcher.Constraint("DistanceY", 0, 3, -1, 1, Q("10 mm")),
])
pocket10 = doc.addObject("PartDesign::Pocket", "Pocket009")
body.addObject(pocket10)
pocket10.Profile = sketch15
pocket10.Type = "UpToFirst"
pocket10.Reversed = True

sketch16 = doc.addObject("Sketcher::SketchObject", "Sketch015")
body.addObject(sketch16)
sketch16.AttachmentSupport = (doc.XZ_Plane, [""])
sketch16.MapMode = "FlatFace"
sketch16.AttachmentOffset = App.Placement(App.Vector(0, 0, -43.5), App.Rotation())
sketch16.addGeometry(Part.Circle(App.Vector(41, -10, 0), App.Vector(0, 0, 1), 1), False)
sketch16.addConstraint([
    Sketcher.Constraint("Diameter", 0, Q("2 mm")),
    Sketcher.Constraint("DistanceX", -1, 1, 0, 3, Q("41 mm")),
    Sketcher.Constraint("DistanceY", 0, 3, -1, 1, Q("10 mm")),
])
pocket11 = doc.addObject("PartDesign::Pocket", "Pocket010")
body.addObject(pocket11)
pocket11.Profile = sketch16
pocket11.Type = "UpToFirst"
pocket11.Reversed = True

sketch17 = doc.addObject("Sketcher::SketchObject", "Sketch016")
body.addObject(sketch17)
sketch17.AttachmentSupport = (doc.XZ_Plane, [""])
sketch17.MapMode = "FlatFace"
sketch17.AttachmentOffset = App.Placement(App.Vector(0, 0, -43.5), App.Rotation())
sketch17.addGeometry(Part.Circle(App.Vector(38, -10, 0), App.Vector(0, 0, 1), 1), False)
sketch17.addConstraint([
    Sketcher.Constraint("Diameter", 0, Q("2 mm")),
    Sketcher.Constraint("DistanceX", -1, 1, 0, 3, Q("38 mm")),
    Sketcher.Constraint("DistanceY", 0, 3, -1, 1, Q("10 mm")),
])
pocket12 = doc.addObject("PartDesign::Pocket", "Pocket011")
body.addObject(pocket12)
pocket12.Profile = sketch17
pocket12.Type = "UpToFirst"
pocket12.Reversed = True

sketch18 = doc.addObject("Sketcher::SketchObject", "Sketch017")
body.addObject(sketch18)
sketch18.AttachmentSupport = (doc.XZ_Plane, [""])
sketch18.MapMode = "FlatFace"
sketch18.AttachmentOffset = App.Placement(App.Vector(0, 0, -43.5), App.Rotation())
sketch18.addGeometry(Part.Circle(App.Vector(30, 7, 0), App.Vector(0, 0, 1), 1), False)
sketch18.addConstraint([
    Sketcher.Constraint("Diameter", 0, Q("2 mm")),
    Sketcher.Constraint("DistanceX", -1, 1, 0, 3, Q("30 mm")),
    Sketcher.Constraint("DistanceY", -1, 1, 0, 3, Q("7 mm")),
])
pocket13 = doc.addObject("PartDesign::Pocket", "Pocket012")
body.addObject(pocket13)
pocket13.Profile = sketch18
pocket13.Type = "UpToFirst"
pocket13.Reversed = True

sketch19 = doc.addObject("Sketcher::SketchObject", "Sketch018")
body.addObject(sketch19)
sketch19.AttachmentSupport = (doc.XZ_Plane, [""])
sketch19.MapMode = "FlatFace"
sketch19.AttachmentOffset = App.Placement(App.Vector(0, 0, -43.5), App.Rotation())
sketch19.addGeometry(Part.Circle(App.Vector(30, 4, 0), App.Vector(0, 0, 1), 1), False)
sketch19.addConstraint([
    Sketcher.Constraint("Diameter", 0, Q("2 mm")),
    Sketcher.Constraint("DistanceX", -1, 1, 0, 3, Q("30 mm")),
    Sketcher.Constraint("DistanceY", -1, 1, 0, 3, Q("4 mm")),
])
pocket14 = doc.addObject("PartDesign::Pocket", "Pocket013")
body.addObject(pocket14)
pocket14.Profile = sketch19
pocket14.Type = "UpToFirst"
pocket14.Reversed = True

sketch20 = doc.addObject("Sketcher::SketchObject", "Sketch019")
body.addObject(sketch20)
sketch20.AttachmentSupport = (doc.XZ_Plane, [""])
sketch20.MapMode = "FlatFace"
sketch20.AttachmentOffset = App.Placement(App.Vector(0, 0, -43.5), App.Rotation())
sketch20.addGeometry(Part.Circle(App.Vector(30, 1, 0), App.Vector(0, 0, 1), 1), False)
sketch20.addConstraint([
    Sketcher.Constraint("Diameter", 0, Q("2 mm")),
    Sketcher.Constraint("DistanceX", -1, 1, 0, 3, Q("30 mm")),
    Sketcher.Constraint("DistanceY", -1, 1, 0, 3, Q("1 mm")),
])
pocket15 = doc.addObject("PartDesign::Pocket", "Pocket014")
body.addObject(pocket15)
pocket15.Profile = sketch20
pocket15.Type = "UpToFirst"
pocket15.Reversed = True

sketch21 = doc.addObject("Sketcher::SketchObject", "Sketch020")
body.addObject(sketch21)
sketch21.AttachmentSupport = (doc.XZ_Plane, [""])
sketch21.MapMode = "FlatFace"
sketch21.AttachmentOffset = App.Placement(App.Vector(0, 0, -43.5), App.Rotation())
sketch21.addGeometry(Part.Circle(App.Vector(30, -2, 0), App.Vector(0, 0, 1), 1), False)
sketch21.addConstraint([
    Sketcher.Constraint("Diameter", 0, Q("2 mm")),
    Sketcher.Constraint("DistanceX", -1, 1, 0, 3, Q("30 mm")),
    Sketcher.Constraint("DistanceY", 0, 3, -1, 1, Q("2 mm")),
])
pocket16 = doc.addObject("PartDesign::Pocket", "Pocket015")
body.addObject(pocket16)
pocket16.Profile = sketch21
pocket16.Type = "UpToFirst"
pocket16.Reversed = True

sketch22 = doc.addObject("Sketcher::SketchObject", "Sketch021")
body.addObject(sketch22)
sketch22.AttachmentSupport = (doc.XZ_Plane, [""])
sketch22.MapMode = "FlatFace"
sketch22.AttachmentOffset = App.Placement(App.Vector(0, 0, -43.5), App.Rotation())
sketch22.addGeometry(Part.Circle(App.Vector(13, -10, 0), App.Vector(0, 0, 1), 1), False)
sketch22.addConstraint([
    Sketcher.Constraint("Diameter", 0, Q("2 mm")),
    Sketcher.Constraint("DistanceX", -1, 1, 0, 3, Q("13 mm")),
    Sketcher.Constraint("DistanceY", 0, 3, -1, 1, Q("10 mm")),
])
pocket17 = doc.addObject("PartDesign::Pocket", "Pocket016")
body.addObject(pocket17)
pocket17.Profile = sketch22
pocket17.Type = "UpToFirst"
pocket17.Reversed = True

sketch23 = doc.addObject("Sketcher::SketchObject", "Sketch022")
body.addObject(sketch23)
sketch23.AttachmentSupport = (doc.XZ_Plane, [""])
sketch23.MapMode = "FlatFace"
sketch23.AttachmentOffset = App.Placement(App.Vector(0, 0, -43.5), App.Rotation())
sketch23.addGeometry(Part.Circle(App.Vector(16, -10, 0), App.Vector(0, 0, 1), 1), False)
sketch23.addConstraint([
    Sketcher.Constraint("Diameter", 0, Q("2 mm")),
    Sketcher.Constraint("DistanceX", -1, 1, 0, 3, Q("16 mm")),
    Sketcher.Constraint("DistanceY", 0, 3, -1, 1, Q("10 mm")),
])
pocket18 = doc.addObject("PartDesign::Pocket", "Pocket017")
body.addObject(pocket18)
pocket18.Profile = sketch23
pocket18.Type = "UpToFirst"
pocket18.Reversed = True

sketch24 = doc.addObject("Sketcher::SketchObject", "Sketch023")
body.addObject(sketch24)
sketch24.AttachmentSupport = (doc.XZ_Plane, [""])
sketch24.MapMode = "FlatFace"
sketch24.AttachmentOffset = App.Placement(App.Vector(0, 0, -43.5), App.Rotation())
sketch24.addGeometry(Part.Circle(App.Vector(19, -10, 0), App.Vector(0, 0, 1), 1), False)
sketch24.addConstraint([
    Sketcher.Constraint("Diameter", 0, Q("2 mm")),
    Sketcher.Constraint("DistanceX", -1, 1, 0, 3, Q("19 mm")),
    Sketcher.Constraint("DistanceY", 0, 3, -1, 1, Q("10 mm")),
])
pocket19 = doc.addObject("PartDesign::Pocket", "Pocket018")
body.addObject(pocket19)
pocket19.Profile = sketch24
pocket19.Type = "UpToFirst"
pocket19.Reversed = True

sketch25 = doc.addObject("Sketcher::SketchObject", "Sketch024")
body.addObject(sketch25)
sketch25.AttachmentSupport = (doc.XZ_Plane, [""])
sketch25.MapMode = "FlatFace"
sketch25.AttachmentOffset = App.Placement(App.Vector(0, 0, -43.5), App.Rotation())
sketch25.addGeometry(Part.Circle(App.Vector(22, -10, 0), App.Vector(0, 0, 1), 1), False)
sketch25.addConstraint([
    Sketcher.Constraint("Diameter", 0, Q("2 mm")),
    Sketcher.Constraint("DistanceX", -1, 1, 0, 3, Q("22 mm")),
    Sketcher.Constraint("DistanceY", 0, 3, -1, 1, Q("10 mm")),
])
pocket20 = doc.addObject("PartDesign::Pocket", "Pocket019")
body.addObject(pocket20)
pocket20.Profile = sketch25
pocket20.Type = "UpToFirst"
pocket20.Reversed = True

sketch26 = doc.addObject("Sketcher::SketchObject", "Sketch025")
body.addObject(sketch26)
sketch26.AttachmentSupport = (doc.YZ_Plane, [""])
sketch26.MapMode = "FlatFace"
sketch26.AttachmentOffset = App.Placement(App.Vector(0, 0, 40), App.Rotation())
sketch26.addGeometry([
    Part.LineSegment(App.Vector(4, -7, 0), App.Vector(1, -7, 0)),
    Part.LineSegment(App.Vector(1, -7, 0), App.Vector(1, -13, 0)),
    Part.LineSegment(App.Vector(1, -13, 0), App.Vector(4, -13, 0)),
    Part.LineSegment(App.Vector(4, -13, 0), App.Vector(4, -7, 0)),
], False)
sketch26.addConstraint([
    Sketcher.Constraint("Coincident", 0, 2, 1, 1),
    Sketcher.Constraint("Coincident", 1, 2, 2, 1),
    Sketcher.Constraint("Coincident", 2, 2, 3, 1),
    Sketcher.Constraint("Coincident", 3, 2, 0, 1),
    Sketcher.Constraint("Horizontal", 0),
    Sketcher.Constraint("Vertical", 1),
    Sketcher.Constraint("Horizontal", 2),
    Sketcher.Constraint("Vertical", 3),
    Sketcher.Constraint("DistanceX", 0, 2, 0, 1, Q("3 mm")),
    Sketcher.Constraint("DistanceY", 1, 2, 1, 1, Q("6 mm")),
    Sketcher.Constraint("DistanceX", -1, 1, 0, 2, Q("1 mm")),
    Sketcher.Constraint("DistanceY", 0, 2, -1, 1, Q("7 mm")),
])
pad6 = doc.addObject("PartDesign::Pad", "Pad005")
body.addObject(pad6)
pad6.Profile = sketch26
pad6.Length = 7

doc.recompute()
